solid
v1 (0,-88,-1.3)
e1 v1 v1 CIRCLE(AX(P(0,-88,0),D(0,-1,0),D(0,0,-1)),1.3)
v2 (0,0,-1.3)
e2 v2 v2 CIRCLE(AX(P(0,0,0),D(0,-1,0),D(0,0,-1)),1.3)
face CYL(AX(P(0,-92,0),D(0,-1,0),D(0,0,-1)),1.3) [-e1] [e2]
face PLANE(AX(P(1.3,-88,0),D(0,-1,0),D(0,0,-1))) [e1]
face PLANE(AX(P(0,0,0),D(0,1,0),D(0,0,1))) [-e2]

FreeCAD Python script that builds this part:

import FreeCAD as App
import Part
import Sketcher

V = App.Vector


def add_polygon(sketch, points):
    """Adds a closed chain of lines whose ends are joined by coincident constraints."""
    first, n = sketch.GeometryCount, len(points)
    for a, b in zip(points, points[1:] + points[:1]):
        sketch.addGeometry(Part.LineSegment(App.Vector(*a, 0), App.Vector(*b, 0)), False)
    for i in range(n):
        sketch.addConstraint(Sketcher.Constraint("Coincident", first + i, 2, first + (i + 1) % n, 1))

doc = App.newDocument("Part")
params = doc.addObject("Spreadsheet::Sheet", "Params")
for row, (alias, value) in enumerate([
    ("sketch1_height", "88 mm"),
    ("sketch1_width", "1.3 mm"),
    ("revolution_angle", "360 deg"),
], start=1):
    params.set(f"A{row}", alias)
    params.set(f"B{row}", "=" + value)
    params.setAlias(f"B{row}", alias)

body = doc.addObject("PartDesign::Body", "Body")

# Sketch on XY plane
sketch1 = body.newObject("Sketcher::SketchObject", "Sketch")
sketch1.AttachmentSupport = (doc.getObject("XY_Plane"), [""])
sketch1.MapMode = "FlatFace"
add_polygon(sketch1, [(0, 0), (0, -88), (1.3, -88), (1.3, 0)])  # lines 0-3
sketch1.addConstraint([
    Sketcher.Constraint("Vertical", 0),
    Sketcher.Constraint("Horizontal", 1),
    Sketcher.Constraint("Vertical", 2),
    Sketcher.Constraint("Horizontal", 3),
    Sketcher.Constraint("Coincident", 3, 2, -1, 1),
    Sketcher.Constraint("DistanceY", 0, 2, 0, 1, 88.0),
    Sketcher.Constraint("DistanceX", 1, 1, 1, 2, 1.3),
])
sketch1.setExpression("Constraints[9]", "Params.sketch1_height")
sketch1.setExpression("Constraints[10]", "Params.sketch1_width")
revolution = body.newObject("PartDesign::Revolution", "Revolution")
revolution.Profile = sketch1
revolution.ReferenceAxis = (sketch1, ["V_Axis"])
revolution.setExpression("Angle", "Params.revolution_angle")

doc.recompute()
